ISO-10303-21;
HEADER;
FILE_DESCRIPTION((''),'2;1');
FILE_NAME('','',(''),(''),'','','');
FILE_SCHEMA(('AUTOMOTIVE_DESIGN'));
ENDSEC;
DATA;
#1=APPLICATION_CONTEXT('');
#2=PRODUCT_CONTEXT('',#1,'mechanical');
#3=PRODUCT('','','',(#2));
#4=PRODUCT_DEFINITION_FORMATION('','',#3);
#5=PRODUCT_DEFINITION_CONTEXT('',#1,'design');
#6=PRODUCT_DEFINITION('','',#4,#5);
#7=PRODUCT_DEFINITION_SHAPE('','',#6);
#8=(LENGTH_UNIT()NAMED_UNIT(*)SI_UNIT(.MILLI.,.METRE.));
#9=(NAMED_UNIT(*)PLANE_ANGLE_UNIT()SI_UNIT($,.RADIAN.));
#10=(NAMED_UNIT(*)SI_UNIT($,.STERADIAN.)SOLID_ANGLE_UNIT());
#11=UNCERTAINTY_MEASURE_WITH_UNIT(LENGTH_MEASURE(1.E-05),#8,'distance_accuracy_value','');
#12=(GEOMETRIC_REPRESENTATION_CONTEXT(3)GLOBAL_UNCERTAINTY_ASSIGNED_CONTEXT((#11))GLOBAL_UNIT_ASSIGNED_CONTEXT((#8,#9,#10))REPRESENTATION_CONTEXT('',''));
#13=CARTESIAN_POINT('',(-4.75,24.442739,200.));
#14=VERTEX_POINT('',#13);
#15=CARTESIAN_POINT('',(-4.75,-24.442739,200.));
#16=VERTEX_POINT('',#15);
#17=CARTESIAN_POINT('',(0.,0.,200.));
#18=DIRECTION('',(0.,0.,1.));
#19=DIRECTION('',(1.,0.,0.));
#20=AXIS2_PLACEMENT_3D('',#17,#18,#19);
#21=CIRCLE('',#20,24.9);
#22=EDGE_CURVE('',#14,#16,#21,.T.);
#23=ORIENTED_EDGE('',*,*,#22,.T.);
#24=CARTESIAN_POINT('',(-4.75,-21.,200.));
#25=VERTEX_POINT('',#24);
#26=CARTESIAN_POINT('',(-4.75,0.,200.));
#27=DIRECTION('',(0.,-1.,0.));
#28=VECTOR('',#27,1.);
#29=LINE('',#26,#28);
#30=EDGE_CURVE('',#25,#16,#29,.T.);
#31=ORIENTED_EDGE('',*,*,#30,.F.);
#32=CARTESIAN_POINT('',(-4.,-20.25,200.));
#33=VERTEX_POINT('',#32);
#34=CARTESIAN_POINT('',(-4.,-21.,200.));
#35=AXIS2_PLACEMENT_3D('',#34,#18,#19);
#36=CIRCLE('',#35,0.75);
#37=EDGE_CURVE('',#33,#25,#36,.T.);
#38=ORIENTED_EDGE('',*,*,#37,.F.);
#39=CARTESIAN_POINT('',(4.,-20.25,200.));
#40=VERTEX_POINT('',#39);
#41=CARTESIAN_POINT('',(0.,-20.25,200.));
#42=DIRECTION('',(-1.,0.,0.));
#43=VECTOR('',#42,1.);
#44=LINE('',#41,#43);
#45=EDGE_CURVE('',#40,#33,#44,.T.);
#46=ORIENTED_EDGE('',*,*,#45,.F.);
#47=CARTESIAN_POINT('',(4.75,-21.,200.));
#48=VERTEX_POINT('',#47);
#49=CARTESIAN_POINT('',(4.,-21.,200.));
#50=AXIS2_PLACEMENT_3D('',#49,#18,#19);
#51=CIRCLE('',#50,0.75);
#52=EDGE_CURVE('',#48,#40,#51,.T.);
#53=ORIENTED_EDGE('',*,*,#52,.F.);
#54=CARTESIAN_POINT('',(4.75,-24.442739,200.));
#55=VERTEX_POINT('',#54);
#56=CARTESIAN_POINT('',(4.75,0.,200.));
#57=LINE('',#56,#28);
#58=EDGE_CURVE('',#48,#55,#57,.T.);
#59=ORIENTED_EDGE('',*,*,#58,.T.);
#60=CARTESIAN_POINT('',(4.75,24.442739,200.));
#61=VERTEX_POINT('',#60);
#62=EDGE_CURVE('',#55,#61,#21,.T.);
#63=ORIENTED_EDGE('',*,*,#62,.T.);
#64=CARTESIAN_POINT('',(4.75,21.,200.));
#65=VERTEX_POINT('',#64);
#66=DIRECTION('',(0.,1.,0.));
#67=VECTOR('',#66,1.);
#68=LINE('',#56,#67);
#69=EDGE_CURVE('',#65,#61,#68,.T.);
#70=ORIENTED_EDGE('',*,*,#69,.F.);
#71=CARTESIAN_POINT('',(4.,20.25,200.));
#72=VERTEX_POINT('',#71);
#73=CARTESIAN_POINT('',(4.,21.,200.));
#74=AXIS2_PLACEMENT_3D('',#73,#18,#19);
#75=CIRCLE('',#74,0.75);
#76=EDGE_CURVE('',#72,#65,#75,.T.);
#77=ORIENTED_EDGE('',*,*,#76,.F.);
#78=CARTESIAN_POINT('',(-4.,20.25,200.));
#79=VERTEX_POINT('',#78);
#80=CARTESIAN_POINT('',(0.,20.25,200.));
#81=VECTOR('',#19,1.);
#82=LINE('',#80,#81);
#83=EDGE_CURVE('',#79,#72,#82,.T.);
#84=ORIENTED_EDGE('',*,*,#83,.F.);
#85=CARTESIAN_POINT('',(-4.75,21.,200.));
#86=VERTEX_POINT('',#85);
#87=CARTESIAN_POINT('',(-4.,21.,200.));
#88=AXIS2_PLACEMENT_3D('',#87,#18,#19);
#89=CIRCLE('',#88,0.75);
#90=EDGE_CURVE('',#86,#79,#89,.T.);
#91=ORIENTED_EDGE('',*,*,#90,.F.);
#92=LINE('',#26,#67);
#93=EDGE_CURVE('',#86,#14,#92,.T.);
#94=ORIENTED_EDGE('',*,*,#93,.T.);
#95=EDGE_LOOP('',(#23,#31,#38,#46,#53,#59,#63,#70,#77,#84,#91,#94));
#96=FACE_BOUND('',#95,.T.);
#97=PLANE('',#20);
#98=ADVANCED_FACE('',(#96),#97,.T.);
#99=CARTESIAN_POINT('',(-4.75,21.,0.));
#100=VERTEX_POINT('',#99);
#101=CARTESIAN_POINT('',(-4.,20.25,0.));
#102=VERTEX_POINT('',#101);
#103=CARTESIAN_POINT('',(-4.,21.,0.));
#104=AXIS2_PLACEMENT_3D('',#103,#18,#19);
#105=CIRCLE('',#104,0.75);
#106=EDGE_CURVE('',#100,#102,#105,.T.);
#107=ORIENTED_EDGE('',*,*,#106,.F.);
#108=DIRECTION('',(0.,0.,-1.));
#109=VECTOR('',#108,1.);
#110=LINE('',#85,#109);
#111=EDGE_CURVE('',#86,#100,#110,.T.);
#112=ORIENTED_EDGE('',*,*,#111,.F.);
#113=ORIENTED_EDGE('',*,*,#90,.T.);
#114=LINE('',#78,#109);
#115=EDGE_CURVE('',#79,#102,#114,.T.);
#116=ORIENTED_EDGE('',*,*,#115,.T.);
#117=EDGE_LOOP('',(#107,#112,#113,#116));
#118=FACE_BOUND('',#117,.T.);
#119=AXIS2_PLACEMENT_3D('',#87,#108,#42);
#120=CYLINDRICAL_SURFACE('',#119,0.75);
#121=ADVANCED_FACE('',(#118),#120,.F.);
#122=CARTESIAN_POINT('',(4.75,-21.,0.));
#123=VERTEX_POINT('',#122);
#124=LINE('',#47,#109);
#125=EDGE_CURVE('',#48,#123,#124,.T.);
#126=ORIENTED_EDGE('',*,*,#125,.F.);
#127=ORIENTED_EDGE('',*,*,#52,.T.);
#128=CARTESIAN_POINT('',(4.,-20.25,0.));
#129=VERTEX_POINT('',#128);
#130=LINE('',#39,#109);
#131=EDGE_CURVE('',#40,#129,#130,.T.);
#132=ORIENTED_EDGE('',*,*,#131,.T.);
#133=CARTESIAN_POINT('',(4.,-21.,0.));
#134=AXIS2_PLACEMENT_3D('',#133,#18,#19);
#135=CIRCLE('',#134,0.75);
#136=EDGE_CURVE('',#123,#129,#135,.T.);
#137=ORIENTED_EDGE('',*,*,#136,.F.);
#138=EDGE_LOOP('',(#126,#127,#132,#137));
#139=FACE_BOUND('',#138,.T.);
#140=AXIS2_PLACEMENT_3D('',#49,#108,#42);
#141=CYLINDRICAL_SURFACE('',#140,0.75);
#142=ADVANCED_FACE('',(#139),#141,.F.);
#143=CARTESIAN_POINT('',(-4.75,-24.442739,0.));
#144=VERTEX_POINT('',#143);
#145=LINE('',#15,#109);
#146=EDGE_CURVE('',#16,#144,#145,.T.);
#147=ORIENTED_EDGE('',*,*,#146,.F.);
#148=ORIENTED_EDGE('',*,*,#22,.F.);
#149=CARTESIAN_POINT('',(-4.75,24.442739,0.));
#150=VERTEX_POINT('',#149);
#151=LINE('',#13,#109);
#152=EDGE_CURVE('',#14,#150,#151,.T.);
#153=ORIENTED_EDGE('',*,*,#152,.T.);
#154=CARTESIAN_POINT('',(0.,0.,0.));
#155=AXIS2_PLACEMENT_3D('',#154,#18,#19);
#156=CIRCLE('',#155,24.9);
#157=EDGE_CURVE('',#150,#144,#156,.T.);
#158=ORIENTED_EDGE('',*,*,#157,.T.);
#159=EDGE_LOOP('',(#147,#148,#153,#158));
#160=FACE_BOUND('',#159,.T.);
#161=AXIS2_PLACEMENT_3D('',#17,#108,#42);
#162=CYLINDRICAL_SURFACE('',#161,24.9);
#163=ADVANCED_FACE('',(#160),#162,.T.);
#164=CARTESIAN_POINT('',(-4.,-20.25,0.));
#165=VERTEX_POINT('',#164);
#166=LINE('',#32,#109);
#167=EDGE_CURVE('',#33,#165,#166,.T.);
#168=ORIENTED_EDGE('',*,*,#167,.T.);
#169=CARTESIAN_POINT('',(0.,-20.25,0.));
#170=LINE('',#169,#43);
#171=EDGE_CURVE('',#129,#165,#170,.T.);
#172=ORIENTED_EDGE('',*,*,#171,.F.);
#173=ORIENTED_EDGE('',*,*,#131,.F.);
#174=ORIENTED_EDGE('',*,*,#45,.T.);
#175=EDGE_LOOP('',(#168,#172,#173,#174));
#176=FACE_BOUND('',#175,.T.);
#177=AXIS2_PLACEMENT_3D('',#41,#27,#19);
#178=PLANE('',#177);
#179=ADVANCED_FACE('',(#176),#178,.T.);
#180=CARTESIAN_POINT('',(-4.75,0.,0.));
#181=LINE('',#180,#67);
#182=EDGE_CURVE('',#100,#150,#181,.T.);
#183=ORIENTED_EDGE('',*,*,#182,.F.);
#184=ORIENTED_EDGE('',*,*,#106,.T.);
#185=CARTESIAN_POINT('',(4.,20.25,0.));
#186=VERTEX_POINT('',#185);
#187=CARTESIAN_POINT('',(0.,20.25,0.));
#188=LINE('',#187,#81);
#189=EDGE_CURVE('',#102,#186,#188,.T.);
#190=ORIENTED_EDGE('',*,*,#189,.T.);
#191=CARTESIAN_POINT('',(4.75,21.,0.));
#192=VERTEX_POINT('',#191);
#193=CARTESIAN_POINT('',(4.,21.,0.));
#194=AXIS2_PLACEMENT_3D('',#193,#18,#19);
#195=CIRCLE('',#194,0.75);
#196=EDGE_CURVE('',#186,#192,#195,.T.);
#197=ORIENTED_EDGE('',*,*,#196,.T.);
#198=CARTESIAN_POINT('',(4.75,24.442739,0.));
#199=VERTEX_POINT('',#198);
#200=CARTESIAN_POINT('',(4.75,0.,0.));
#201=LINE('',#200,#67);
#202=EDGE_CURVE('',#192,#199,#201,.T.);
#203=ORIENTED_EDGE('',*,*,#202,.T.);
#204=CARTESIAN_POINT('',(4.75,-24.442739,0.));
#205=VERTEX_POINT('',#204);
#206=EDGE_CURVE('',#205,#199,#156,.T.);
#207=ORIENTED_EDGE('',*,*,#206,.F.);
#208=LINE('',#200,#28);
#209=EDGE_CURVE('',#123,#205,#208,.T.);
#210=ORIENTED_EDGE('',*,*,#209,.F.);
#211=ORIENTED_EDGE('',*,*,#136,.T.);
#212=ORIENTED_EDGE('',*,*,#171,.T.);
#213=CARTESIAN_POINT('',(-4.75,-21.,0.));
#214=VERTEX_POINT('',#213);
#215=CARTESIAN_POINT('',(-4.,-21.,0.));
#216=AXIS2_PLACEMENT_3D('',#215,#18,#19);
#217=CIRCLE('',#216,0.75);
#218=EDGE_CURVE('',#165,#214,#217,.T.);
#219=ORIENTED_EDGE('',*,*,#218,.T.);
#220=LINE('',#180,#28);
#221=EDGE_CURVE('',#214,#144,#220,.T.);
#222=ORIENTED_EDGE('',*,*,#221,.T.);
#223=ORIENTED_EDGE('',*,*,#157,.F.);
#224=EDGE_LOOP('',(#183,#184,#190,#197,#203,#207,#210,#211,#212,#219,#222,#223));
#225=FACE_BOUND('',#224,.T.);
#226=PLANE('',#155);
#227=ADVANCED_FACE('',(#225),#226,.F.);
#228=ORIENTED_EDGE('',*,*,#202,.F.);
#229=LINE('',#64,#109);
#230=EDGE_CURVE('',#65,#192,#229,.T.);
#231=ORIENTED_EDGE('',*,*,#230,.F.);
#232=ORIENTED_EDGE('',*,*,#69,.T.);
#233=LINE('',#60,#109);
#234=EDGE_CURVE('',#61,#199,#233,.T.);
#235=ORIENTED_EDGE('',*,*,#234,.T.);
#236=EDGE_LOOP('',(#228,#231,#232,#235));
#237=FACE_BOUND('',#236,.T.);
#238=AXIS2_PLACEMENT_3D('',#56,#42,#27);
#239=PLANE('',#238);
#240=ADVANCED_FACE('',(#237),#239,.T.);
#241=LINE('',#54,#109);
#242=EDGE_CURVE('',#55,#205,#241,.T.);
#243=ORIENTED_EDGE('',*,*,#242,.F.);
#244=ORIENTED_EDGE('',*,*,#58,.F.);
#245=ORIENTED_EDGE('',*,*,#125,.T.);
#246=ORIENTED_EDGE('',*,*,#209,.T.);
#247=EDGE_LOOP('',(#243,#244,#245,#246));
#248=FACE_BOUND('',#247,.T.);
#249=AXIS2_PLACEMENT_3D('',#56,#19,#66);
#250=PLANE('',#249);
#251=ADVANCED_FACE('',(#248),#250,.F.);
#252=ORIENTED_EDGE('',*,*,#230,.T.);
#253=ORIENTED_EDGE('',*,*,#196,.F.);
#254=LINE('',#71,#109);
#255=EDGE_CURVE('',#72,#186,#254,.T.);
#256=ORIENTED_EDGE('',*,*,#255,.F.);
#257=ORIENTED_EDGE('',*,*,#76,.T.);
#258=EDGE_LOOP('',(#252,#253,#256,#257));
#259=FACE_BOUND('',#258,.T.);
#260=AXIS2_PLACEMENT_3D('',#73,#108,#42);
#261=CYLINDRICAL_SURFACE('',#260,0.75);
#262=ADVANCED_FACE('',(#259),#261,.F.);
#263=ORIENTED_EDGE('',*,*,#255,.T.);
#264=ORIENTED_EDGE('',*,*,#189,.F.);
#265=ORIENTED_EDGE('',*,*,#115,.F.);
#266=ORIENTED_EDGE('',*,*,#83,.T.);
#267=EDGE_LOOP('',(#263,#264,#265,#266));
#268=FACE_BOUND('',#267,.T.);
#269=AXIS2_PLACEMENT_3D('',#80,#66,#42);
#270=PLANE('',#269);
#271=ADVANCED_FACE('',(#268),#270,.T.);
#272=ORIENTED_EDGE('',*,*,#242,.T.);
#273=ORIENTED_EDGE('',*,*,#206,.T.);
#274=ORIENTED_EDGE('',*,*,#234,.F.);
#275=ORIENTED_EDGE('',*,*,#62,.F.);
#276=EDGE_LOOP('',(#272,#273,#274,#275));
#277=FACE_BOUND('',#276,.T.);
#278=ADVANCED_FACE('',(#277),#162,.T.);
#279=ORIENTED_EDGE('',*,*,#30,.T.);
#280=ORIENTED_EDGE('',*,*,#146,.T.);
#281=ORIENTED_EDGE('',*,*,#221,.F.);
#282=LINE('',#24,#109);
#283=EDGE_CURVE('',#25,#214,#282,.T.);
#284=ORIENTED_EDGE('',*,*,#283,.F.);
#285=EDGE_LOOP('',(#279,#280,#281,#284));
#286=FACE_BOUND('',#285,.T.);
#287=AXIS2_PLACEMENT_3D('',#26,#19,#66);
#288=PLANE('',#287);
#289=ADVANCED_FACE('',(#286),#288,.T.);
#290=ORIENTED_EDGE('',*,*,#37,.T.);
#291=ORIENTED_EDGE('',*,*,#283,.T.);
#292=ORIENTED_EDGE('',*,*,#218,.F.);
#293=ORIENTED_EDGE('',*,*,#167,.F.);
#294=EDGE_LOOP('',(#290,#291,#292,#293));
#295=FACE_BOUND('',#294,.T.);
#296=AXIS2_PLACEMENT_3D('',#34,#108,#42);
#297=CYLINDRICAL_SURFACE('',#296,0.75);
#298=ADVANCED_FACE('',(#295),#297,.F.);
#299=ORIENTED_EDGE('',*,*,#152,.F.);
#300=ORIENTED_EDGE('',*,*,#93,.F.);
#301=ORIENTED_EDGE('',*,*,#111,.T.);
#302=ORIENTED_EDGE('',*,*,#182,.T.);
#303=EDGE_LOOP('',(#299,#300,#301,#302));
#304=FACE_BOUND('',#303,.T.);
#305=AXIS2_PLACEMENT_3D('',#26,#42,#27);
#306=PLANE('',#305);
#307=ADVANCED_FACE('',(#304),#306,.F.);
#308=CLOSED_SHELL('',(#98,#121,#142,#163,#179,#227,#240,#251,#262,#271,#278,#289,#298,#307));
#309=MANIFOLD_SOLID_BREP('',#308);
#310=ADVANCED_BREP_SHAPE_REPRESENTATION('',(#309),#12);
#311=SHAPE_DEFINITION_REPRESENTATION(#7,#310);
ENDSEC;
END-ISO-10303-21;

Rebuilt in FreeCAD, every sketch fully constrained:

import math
import FreeCAD as App
import Part
import Sketcher

V = App.Vector

doc = App.newDocument("Part")
body = doc.addObject("PartDesign::Body", "Body")

# Sketch on XY plane
sketch1 = doc.addObject("Sketcher::SketchObject", "Sketch")
body.addObject(sketch1)
sketch1.AttachmentSupport = (doc.XY_Plane, [""])
sketch1.MapMode = "FlatFace"
sketch1.addGeometry([
    Part.LineSegment(V(-4.75, 21, 0), V(-4.75, 24.442739, 0)),  # 0
    Part.ArcOfCircle(Part.Circle(V(0, 0, 0), V(0, 0, 1), 24.9), math.radians(100.997318), math.radians(259.002682)),  # 1
    Part.LineSegment(V(-4.75, -24.442739, 0), V(-4.75, -21, 0)),  # 2
    Part.ArcOfCircle(Part.Circle(V(-4, -21, 0), V(0, 0, 1), 0.75), math.radians(90), math.radians(180)),  # 3
    Part.LineSegment(V(-4, -20.25, 0), V(4, -20.25, 0)),  # 4
    Part.ArcOfCircle(Part.Circle(V(4, -21, 0), V(0, 0, 1), 0.75), math.radians(0), math.radians(90)),  # 5
    Part.LineSegment(V(4.75, -21, 0), V(4.75, -24.442739, 0)),  # 6
    Part.ArcOfCircle(Part.Circle(V(0, 0, 0), V(0, 0, 1), 24.9), math.radians(-79.002682), math.radians(79.002682)),  # 7
    Part.LineSegment(V(4.75, 24.442739, 0), V(4.75, 21, 0)),  # 8
    Part.ArcOfCircle(Part.Circle(V(4, 21, 0), V(0, 0, 1), 0.75), math.radians(-90), math.radians(0)),  # 9
    Part.LineSegment(V(4, 20.25, 0), V(-4, 20.25, 0)),  # 10
    Part.ArcOfCircle(Part.Circle(V(-4, 21, 0), V(0, 0, 1), 0.75), math.radians(180), math.radians(270)),  # 11
], False)
sketch1.addConstraint([
    Sketcher.Constraint("Coincident", 0, 2, 1, 1),
    Sketcher.Constraint("Coincident", 1, 2, 2, 1),
    Sketcher.Constraint("Tangent", 2, 2, 3, 2),
    Sketcher.Constraint("Tangent", 3, 1, 4, 1),
    Sketcher.Constraint("Tangent", 4, 2, 5, 2),
    Sketcher.Constraint("Tangent", 5, 1, 6, 1),
    Sketcher.Constraint("Coincident", 6, 2, 7, 1),
    Sketcher.Constraint("Coincident", 7, 2, 8, 1),
    Sketcher.Constraint("Tangent", 8, 2, 9, 2),
    Sketcher.Constraint("Tangent", 9, 1, 10, 1),
    Sketcher.Constraint("Tangent", 10, 2, 11, 2),
    Sketcher.Constraint("Tangent", 11, 1, 0, 1),
    Sketcher.Constraint("Vertical", 0),
    Sketcher.Constraint("Vertical", 2),
    Sketcher.Constraint("Horizontal", 4),
    Sketcher.Constraint("Vertical", 6),
    Sketcher.Constraint("Vertical", 8),
    Sketcher.Constraint("Horizontal", 10),
    Sketcher.Constraint("Coincident", 1, 3, -1, 1),
    Sketcher.Constraint("Coincident", 7, 3, -1, 1),
    Sketcher.Constraint("Equal", 3, 5),
    Sketcher.Constraint("Equal", 1, 7),
    Sketcher.Constraint("Equal", 5, 9),
    Sketcher.Constraint("Equal", 9, 11),
    Sketcher.Constraint("Symmetric", 3, 3, 9, 3, -1, 1),
    Sketcher.Constraint("Horizontal", 1, 2, 6, 2),
    Sketcher.Constraint("Horizontal", 0, 2, 7, 2),
    Sketcher.Constraint("Radius", 1, 24.9),
    Sketcher.Constraint("DistanceX", 4, 1, 4, 2, 8.0),
    Sketcher.Constraint("Radius", 3, 0.75),
    Sketcher.Constraint("DistanceY", 3, 3, -1, 1, 21.0),
])
pad1 = doc.addObject("PartDesign::Pad", "Pad")
body.addObject(pad1)
pad1.Profile = sketch1
pad1.Length = 200

doc.recompute()
